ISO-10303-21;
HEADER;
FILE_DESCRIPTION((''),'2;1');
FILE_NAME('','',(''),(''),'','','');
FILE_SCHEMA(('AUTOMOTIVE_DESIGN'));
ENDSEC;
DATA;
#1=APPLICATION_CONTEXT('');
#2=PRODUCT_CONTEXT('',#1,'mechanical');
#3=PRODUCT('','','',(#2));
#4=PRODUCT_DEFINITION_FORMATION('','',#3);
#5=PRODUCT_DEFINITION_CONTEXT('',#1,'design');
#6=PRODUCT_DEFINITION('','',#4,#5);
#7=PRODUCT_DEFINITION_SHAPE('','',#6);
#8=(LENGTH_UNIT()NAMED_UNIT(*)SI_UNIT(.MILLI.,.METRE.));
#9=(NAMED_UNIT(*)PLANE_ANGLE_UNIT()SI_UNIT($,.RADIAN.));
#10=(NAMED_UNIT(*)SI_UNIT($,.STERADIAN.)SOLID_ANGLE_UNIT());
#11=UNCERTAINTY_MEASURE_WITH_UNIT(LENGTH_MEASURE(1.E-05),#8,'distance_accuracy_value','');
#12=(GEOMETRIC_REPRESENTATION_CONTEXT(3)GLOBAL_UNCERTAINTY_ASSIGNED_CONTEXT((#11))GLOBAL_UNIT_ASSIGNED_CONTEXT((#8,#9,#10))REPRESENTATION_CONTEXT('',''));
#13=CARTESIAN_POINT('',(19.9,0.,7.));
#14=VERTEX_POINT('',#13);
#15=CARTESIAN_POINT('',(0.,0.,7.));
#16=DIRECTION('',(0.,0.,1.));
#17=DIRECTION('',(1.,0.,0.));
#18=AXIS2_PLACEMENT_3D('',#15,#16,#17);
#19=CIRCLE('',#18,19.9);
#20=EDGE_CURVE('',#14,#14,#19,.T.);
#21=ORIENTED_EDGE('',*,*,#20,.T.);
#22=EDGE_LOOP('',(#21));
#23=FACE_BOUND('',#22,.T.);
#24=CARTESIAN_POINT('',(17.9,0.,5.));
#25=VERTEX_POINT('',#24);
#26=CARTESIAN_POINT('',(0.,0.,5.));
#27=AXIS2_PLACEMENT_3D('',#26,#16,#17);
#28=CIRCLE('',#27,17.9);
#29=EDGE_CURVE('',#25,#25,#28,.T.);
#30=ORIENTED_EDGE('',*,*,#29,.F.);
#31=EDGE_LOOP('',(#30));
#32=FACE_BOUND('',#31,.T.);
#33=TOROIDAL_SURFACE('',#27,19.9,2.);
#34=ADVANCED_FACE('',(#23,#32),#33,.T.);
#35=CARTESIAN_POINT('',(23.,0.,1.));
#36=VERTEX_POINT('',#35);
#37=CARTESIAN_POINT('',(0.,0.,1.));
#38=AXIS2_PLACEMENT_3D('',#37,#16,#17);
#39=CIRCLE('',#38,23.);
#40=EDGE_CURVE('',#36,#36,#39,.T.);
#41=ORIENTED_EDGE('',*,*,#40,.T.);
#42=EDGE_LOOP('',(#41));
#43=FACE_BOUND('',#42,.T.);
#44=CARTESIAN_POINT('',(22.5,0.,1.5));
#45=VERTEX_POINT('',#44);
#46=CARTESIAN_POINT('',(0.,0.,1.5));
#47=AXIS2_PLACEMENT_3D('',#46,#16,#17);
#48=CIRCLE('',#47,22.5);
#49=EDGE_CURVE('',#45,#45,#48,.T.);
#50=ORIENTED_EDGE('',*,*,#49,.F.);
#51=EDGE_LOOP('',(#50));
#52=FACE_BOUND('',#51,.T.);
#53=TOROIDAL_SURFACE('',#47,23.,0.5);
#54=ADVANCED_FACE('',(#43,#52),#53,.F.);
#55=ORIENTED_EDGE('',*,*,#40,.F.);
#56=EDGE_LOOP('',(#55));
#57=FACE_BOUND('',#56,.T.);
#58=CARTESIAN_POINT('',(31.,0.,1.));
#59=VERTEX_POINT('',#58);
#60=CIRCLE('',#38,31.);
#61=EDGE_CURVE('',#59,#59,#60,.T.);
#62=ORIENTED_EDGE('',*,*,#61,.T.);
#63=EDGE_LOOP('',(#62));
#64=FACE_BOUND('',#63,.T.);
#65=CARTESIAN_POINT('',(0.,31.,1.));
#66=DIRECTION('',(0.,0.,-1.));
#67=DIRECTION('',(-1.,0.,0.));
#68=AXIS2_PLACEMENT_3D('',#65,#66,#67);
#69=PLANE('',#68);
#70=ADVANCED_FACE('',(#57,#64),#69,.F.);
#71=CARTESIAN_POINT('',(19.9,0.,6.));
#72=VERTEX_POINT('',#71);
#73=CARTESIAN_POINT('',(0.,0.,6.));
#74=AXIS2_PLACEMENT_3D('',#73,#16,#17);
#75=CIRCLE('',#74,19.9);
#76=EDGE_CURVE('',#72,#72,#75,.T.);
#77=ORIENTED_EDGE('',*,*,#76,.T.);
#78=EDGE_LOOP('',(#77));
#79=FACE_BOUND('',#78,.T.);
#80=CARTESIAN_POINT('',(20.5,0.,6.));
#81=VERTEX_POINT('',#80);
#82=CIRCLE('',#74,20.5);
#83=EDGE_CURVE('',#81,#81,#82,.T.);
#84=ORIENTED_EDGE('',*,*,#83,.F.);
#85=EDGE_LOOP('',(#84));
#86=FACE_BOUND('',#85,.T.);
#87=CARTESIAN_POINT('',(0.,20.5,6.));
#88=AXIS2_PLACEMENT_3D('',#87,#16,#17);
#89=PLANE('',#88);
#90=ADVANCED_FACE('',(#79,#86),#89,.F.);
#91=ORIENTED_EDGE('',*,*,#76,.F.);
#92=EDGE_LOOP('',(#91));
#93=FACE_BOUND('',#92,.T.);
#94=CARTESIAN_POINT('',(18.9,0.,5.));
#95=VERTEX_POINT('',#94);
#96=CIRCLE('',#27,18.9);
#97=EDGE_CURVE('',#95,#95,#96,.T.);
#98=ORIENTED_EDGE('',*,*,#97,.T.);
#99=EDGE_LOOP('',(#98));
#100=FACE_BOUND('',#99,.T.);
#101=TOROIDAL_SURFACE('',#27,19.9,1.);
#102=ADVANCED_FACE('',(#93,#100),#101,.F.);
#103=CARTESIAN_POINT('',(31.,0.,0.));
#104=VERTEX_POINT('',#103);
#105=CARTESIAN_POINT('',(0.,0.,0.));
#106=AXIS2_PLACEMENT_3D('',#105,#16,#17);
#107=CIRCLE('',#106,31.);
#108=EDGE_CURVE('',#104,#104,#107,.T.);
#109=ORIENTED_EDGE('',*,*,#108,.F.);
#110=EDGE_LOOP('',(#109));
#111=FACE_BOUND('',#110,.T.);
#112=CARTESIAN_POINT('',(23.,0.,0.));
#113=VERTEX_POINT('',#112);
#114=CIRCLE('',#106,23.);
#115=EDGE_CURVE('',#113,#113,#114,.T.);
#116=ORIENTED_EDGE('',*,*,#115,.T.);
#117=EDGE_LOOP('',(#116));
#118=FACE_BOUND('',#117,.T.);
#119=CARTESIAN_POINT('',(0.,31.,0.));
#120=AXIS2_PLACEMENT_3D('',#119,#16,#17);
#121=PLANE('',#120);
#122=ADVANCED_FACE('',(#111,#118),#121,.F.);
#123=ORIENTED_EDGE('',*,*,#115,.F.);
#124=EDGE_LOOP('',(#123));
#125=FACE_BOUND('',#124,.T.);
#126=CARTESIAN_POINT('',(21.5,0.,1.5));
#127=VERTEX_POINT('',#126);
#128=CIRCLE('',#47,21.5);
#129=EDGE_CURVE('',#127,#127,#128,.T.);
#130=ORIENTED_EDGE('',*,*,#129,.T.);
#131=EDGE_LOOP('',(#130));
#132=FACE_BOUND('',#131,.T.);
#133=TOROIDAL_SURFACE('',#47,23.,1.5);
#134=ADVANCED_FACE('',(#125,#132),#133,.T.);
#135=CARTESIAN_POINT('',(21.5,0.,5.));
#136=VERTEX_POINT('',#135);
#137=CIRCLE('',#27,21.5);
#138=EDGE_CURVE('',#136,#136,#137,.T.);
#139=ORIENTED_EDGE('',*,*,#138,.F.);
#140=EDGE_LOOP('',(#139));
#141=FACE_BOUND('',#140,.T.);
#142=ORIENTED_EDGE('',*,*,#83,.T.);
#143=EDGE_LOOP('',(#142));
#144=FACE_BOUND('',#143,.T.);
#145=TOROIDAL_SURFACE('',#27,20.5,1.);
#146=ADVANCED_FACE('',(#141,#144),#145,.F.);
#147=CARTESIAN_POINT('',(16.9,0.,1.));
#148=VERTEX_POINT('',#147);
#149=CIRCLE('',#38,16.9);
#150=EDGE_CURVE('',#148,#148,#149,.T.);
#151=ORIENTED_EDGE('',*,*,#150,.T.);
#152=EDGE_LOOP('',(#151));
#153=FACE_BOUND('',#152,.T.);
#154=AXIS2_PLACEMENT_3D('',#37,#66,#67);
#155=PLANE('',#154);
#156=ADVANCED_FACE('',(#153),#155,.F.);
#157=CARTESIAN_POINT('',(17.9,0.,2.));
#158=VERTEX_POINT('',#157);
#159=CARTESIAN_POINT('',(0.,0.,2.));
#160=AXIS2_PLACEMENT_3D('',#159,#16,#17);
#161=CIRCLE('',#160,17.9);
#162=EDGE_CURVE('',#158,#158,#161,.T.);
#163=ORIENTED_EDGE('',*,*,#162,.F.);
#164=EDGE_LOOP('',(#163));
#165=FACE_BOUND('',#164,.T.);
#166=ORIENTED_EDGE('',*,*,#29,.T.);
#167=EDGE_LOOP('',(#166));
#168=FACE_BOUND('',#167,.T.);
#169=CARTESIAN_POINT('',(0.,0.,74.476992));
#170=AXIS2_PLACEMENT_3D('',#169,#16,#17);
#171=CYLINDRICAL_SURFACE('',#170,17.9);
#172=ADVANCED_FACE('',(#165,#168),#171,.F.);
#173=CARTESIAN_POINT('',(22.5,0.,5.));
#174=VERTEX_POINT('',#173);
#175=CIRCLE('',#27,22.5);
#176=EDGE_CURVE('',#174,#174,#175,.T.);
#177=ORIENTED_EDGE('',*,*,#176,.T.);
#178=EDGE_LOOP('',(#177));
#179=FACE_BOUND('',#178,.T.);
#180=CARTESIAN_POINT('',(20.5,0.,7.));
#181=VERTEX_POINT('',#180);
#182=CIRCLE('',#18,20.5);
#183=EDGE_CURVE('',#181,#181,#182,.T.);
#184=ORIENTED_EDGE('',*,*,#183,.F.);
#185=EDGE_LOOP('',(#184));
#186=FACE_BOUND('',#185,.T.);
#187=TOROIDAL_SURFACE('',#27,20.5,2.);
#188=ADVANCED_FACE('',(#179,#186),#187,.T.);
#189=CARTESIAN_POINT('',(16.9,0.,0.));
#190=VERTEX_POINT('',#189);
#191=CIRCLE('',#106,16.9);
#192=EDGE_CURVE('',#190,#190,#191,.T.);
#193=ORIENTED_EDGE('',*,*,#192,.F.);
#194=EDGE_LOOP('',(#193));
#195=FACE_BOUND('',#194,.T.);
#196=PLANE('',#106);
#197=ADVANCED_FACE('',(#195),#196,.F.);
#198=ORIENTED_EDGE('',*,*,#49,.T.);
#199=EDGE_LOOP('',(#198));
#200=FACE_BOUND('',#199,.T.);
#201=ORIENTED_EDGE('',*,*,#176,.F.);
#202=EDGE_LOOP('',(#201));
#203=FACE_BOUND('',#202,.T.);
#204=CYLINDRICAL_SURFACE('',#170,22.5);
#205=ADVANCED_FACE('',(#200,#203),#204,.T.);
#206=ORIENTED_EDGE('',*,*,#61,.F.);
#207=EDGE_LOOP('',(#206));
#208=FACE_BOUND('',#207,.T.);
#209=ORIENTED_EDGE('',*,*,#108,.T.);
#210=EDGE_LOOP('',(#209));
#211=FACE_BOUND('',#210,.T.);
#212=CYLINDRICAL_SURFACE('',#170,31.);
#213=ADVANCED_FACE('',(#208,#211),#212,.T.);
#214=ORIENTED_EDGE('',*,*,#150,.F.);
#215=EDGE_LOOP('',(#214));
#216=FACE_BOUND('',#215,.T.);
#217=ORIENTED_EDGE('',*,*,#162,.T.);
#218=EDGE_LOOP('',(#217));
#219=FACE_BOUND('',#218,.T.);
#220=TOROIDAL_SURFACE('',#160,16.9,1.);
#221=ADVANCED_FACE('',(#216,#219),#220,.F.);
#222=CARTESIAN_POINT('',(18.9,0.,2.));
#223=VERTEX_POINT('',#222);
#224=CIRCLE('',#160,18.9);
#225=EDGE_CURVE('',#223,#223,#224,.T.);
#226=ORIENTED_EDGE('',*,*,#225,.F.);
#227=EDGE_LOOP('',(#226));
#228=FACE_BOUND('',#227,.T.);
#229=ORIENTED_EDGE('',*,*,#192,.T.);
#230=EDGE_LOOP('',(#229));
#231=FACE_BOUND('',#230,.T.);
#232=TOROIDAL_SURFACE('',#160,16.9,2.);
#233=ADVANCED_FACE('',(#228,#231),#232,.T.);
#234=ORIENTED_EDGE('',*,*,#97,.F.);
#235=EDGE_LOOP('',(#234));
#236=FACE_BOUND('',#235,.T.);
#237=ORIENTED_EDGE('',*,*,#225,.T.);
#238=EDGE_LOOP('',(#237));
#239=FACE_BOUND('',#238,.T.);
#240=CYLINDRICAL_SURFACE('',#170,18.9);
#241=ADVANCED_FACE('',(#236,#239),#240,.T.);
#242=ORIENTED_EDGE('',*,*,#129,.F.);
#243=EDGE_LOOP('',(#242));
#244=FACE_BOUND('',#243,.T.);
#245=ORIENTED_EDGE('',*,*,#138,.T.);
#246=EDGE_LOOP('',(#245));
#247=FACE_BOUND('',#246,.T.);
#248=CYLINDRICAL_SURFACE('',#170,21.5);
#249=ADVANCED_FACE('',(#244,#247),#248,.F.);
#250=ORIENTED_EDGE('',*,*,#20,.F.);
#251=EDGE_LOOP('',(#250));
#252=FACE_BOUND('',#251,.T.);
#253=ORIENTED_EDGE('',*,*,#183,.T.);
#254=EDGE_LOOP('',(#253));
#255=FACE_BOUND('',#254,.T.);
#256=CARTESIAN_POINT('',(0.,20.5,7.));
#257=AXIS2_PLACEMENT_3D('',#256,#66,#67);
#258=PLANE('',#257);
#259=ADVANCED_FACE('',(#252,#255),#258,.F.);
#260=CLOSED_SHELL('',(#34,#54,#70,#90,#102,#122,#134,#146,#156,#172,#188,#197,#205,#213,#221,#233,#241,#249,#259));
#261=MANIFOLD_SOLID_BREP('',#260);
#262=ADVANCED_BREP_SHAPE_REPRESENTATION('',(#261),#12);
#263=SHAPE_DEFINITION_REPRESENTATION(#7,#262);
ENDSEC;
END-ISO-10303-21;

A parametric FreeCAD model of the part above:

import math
import FreeCAD as App
import Part
import Sketcher
from FreeCAD import Vector

doc = App.newDocument("Part")
body = doc.addObject("PartDesign::Body", "Body")

# Sketch on YZ plane
sketch1 = body.newObject("Sketcher::SketchObject", "Sketch")
sketch1.AttachmentSupport = (doc.getObject("YZ_Plane"), [""])
sketch1.MapMode = "FlatFace"
sketch1.addGeometry(Part.LineSegment(Vector(31, 1, 0), Vector(23, 1, 0)), False)
sketch1.addGeometry(Part.ArcOfCircle(Part.Circle(Vector(23, 1.5, 0), Vector(0, 0, 1), 0.5), math.radians(180), math.radians(270)), False)
sketch1.addGeometry(Part.LineSegment(Vector(22.5, 1.5, 0), Vector(22.5, 5, 0)), False)
sketch1.addGeometry(Part.ArcOfCircle(Part.Circle(Vector(20.5, 5, 0), Vector(0, 0, 1), 2), math.radians(0), math.radians(90)), False)
sketch1.addGeometry(Part.LineSegment(Vector(20.5, 7, 0), Vector(19.9, 7, 0)), False)
sketch1.addGeometry(Part.ArcOfCircle(Part.Circle(Vector(19.9, 5, 0), Vector(0, 0, 1), 2), math.radians(90), math.radians(180)), False)
sketch1.addGeometry(Part.LineSegment(Vector(17.9, 5, 0), Vector(17.9, 2, 0)), False)
sketch1.addGeometry(Part.ArcOfCircle(Part.Circle(Vector(16.9, 2, 0), Vector(0, 0, 1), 1), math.radians(-90), math.radians(0)), False)
sketch1.addGeometry(Part.LineSegment(Vector(16.9, 1, 0), Vector(0, 1, 0)), False)
sketch1.addGeometry(Part.LineSegment(Vector(0, 1, 0), Vector(0, 0, 0)), False)
sketch1.addGeometry(Part.LineSegment(Vector(0, 0, 0), Vector(16.9, 0, 0)), False)
sketch1.addGeometry(Part.ArcOfCircle(Part.Circle(Vector(16.9, 2, 0), Vector(0, 0, 1), 2), math.radians(-90), math.radians(0)), False)
sketch1.addGeometry(Part.LineSegment(Vector(18.9, 2, 0), Vector(18.9, 5, 0)), False)
sketch1.addGeometry(Part.ArcOfCircle(Part.Circle(Vector(19.9, 5, 0), Vector(0, 0, 1), 1), math.radians(90), math.radians(180)), False)
sketch1.addGeometry(Part.LineSegment(Vector(19.9, 6, 0), Vector(20.5, 6, 0)), False)
sketch1.addGeometry(Part.ArcOfCircle(Part.Circle(Vector(20.5, 5, 0), Vector(0, 0, 1), 1), math.radians(0), math.radians(90)), False)
sketch1.addGeometry(Part.LineSegment(Vector(21.5, 5, 0), Vector(21.5, 1.5, 0)), False)
sketch1.addGeometry(Part.ArcOfCircle(Part.Circle(Vector(23, 1.5, 0), Vector(0, 0, 1), 1.5), math.radians(180), math.radians(270)), False)
sketch1.addGeometry(Part.LineSegment(Vector(23, 0, 0), Vector(31, 0, 0)), False)
sketch1.addGeometry(Part.LineSegment(Vector(31, 0, 0), Vector(31, 1, 0)), False)
sketch1.addConstraint(Sketcher.Constraint("Tangent", 0, 2, 1, 2))
sketch1.addConstraint(Sketcher.Constraint("Tangent", 1, 1, 2, 1))
sketch1.addConstraint(Sketcher.Constraint("Tangent", 2, 2, 3, 1))
sketch1.addConstraint(Sketcher.Constraint("Tangent", 3, 2, 4, 1))
sketch1.addConstraint(Sketcher.Constraint("Tangent", 4, 2, 5, 1))
sketch1.addConstraint(Sketcher.Constraint("Tangent", 5, 2, 6, 1))
sketch1.addConstraint(Sketcher.Constraint("Tangent", 6, 2, 7, 2))
sketch1.addConstraint(Sketcher.Constraint("Tangent", 7, 1, 8, 1))
sketch1.addConstraint(Sketcher.Constraint("Coincident", 8, 2, 9, 1))
sketch1.addConstraint(Sketcher.Constraint("Coincident", 9, 2, 10, 1))
sketch1.addConstraint(Sketcher.Constraint("Tangent", 10, 2, 11, 1))
sketch1.addConstraint(Sketcher.Constraint("Tangent", 11, 2, 12, 1))
sketch1.addConstraint(Sketcher.Constraint("Tangent", 12, 2, 13, 2))
sketch1.addConstraint(Sketcher.Constraint("Tangent", 13, 1, 14, 1))
sketch1.addConstraint(Sketcher.Constraint("Tangent", 14, 2, 15, 2))
sketch1.addConstraint(Sketcher.Constraint("Tangent", 15, 1, 16, 1))
sketch1.addConstraint(Sketcher.Constraint("Tangent", 16, 2, 17, 1))
sketch1.addConstraint(Sketcher.Constraint("Tangent", 17, 2, 18, 1))
sketch1.addConstraint(Sketcher.Constraint("Coincident", 18, 2, 19, 1))
sketch1.addConstraint(Sketcher.Constraint("Coincident", 19, 2, 0, 1))
sketch1.addConstraint(Sketcher.Constraint("Horizontal", 0))
sketch1.addConstraint(Sketcher.Constraint("Vertical", 2))
sketch1.addConstraint(Sketcher.Constraint("Horizontal", 4))
sketch1.addConstraint(Sketcher.Constraint("Vertical", 6))
sketch1.addConstraint(Sketcher.Constraint("Horizontal", 8))
sketch1.addConstraint(Sketcher.Constraint("Vertical", 9))
sketch1.addConstraint(Sketcher.Constraint("Horizontal", 10))
sketch1.addConstraint(Sketcher.Constraint("Vertical", 12))
sketch1.addConstraint(Sketcher.Constraint("Horizontal", 14))
sketch1.addConstraint(Sketcher.Constraint("Vertical", 16))
sketch1.addConstraint(Sketcher.Constraint("Horizontal", 18))
sketch1.addConstraint(Sketcher.Constraint("Vertical", 19))
sketch1.addConstraint(Sketcher.Constraint("Coincident", 9, 2, -1, 1))
sketch1.addConstraint(Sketcher.Constraint("Coincident", 11, 3, 7, 3))
sketch1.addConstraint(Sketcher.Constraint("Coincident", 13, 3, 5, 3))
sketch1.addConstraint(Sketcher.Constraint("Coincident", 15, 3, 3, 3))
sketch1.addConstraint(Sketcher.Constraint("Coincident", 17, 3, 1, 3))
sketch1.addConstraint(Sketcher.Constraint("Equal", 3, 5))
sketch1.addConstraint(Sketcher.Constraint("Equal", 5, 11))
sketch1.addConstraint(Sketcher.Constraint("PointOnObject", 17, 2, -1))
sketch1.addConstraint(Sketcher.Constraint("Radius", 3, 2.0))
sketch1.addConstraint(Sketcher.Constraint("Radius", 7, 1.0))
sketch1.addConstraint(Sketcher.Constraint("Radius", 1, 0.5))
sketch1.addConstraint(Sketcher.Constraint("DistanceX", 0, 2, 0, 1, 8.0))
sketch1.addConstraint(Sketcher.Constraint("DistanceY", 6, 2, 6, 1, 3.0))
sketch1.addConstraint(Sketcher.Constraint("DistanceX", 4, 2, 4, 1, 0.6))
sketch1.addConstraint(Sketcher.Constraint("DistanceX", 8, 2, 8, 1, 16.9))
revolution = body.newObject("PartDesign::Revolution", "Revolution")
revolution.Profile = sketch1
revolution.ReferenceAxis = (sketch1, ["V_Axis"])
revolution.Angle = 360

doc.recompute()
